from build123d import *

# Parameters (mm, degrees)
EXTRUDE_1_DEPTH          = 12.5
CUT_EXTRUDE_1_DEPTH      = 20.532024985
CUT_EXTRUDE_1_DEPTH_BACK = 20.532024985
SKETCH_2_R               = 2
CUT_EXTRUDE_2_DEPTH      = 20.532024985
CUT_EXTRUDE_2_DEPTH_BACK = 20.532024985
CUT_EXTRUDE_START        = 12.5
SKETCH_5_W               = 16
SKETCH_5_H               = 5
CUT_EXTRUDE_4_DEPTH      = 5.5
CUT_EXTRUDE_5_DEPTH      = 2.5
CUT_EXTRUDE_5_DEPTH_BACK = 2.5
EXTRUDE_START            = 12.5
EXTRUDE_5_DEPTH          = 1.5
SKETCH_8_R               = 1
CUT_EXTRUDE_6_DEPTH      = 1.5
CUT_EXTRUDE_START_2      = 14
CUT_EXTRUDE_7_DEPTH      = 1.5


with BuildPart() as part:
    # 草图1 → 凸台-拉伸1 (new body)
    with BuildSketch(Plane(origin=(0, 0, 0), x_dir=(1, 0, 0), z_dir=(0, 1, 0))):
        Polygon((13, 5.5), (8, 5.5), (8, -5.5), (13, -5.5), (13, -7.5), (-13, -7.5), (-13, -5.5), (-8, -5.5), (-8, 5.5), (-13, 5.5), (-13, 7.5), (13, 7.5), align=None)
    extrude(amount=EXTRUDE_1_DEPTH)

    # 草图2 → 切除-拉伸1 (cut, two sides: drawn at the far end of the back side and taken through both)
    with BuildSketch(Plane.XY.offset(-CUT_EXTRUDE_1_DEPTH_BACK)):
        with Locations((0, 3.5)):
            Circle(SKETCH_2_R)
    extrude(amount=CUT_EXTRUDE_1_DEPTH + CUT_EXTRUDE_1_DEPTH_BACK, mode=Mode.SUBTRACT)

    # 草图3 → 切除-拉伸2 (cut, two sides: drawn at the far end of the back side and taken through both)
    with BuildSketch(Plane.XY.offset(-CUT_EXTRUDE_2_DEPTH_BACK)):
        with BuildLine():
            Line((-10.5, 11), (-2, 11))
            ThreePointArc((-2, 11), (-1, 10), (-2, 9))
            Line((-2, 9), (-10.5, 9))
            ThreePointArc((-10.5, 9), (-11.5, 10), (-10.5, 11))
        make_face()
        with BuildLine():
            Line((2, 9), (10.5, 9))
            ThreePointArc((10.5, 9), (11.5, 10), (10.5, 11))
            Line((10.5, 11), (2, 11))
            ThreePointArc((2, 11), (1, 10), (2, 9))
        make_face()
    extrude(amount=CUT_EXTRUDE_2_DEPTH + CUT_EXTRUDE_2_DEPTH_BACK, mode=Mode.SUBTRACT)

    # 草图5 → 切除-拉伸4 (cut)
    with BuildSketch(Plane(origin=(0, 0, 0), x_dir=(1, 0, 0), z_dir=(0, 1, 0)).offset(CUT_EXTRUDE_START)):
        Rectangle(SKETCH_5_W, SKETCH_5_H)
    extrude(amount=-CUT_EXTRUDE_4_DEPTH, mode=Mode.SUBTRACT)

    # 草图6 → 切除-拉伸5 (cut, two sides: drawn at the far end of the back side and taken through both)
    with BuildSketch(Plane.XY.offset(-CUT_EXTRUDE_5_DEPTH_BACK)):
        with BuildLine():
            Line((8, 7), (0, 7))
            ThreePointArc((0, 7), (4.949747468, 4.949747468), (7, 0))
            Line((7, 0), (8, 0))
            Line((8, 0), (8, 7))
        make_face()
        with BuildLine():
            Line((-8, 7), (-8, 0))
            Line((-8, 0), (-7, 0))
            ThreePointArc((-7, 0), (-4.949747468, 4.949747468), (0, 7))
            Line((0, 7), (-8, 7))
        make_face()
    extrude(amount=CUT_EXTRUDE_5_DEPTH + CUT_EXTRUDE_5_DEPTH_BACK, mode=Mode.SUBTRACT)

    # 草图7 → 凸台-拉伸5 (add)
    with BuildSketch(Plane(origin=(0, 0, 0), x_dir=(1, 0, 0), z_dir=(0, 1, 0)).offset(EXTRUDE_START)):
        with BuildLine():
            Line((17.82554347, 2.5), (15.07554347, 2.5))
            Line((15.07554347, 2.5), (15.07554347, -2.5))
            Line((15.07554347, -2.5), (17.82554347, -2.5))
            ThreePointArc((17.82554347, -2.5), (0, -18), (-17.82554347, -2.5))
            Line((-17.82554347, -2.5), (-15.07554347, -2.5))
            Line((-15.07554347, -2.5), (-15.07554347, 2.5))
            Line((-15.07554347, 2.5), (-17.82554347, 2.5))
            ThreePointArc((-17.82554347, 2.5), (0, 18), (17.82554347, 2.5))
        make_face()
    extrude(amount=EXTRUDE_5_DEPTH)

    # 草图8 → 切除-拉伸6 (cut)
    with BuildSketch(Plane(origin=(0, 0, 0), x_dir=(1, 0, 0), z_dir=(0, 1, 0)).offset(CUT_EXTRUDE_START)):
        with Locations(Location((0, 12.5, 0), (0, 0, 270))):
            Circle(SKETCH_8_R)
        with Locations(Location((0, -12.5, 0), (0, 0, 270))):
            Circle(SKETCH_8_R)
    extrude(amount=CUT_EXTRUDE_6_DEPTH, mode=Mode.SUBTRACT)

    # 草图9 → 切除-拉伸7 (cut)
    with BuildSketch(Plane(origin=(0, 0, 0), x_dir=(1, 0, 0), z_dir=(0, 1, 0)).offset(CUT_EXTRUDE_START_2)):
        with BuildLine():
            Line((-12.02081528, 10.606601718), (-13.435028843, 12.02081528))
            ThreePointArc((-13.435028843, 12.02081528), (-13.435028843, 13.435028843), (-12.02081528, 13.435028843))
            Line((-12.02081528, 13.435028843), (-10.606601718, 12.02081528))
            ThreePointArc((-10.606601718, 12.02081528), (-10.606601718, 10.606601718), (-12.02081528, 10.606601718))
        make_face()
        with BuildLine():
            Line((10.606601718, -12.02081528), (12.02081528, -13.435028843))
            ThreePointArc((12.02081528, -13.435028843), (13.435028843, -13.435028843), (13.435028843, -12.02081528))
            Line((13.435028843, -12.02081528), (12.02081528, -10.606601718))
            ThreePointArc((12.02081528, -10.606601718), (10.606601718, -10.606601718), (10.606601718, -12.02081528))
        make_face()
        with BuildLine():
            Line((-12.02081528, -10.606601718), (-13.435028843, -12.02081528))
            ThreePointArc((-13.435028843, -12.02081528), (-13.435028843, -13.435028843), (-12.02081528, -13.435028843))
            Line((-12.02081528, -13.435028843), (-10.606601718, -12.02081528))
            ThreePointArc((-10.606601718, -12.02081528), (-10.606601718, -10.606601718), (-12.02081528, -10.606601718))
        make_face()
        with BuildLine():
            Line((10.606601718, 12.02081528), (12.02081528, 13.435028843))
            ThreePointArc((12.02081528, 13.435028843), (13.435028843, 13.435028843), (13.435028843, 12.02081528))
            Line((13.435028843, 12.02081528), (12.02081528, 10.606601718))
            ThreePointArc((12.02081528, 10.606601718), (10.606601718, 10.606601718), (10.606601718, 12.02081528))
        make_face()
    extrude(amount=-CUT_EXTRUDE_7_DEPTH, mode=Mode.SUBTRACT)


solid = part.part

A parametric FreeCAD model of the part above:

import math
import FreeCAD as App
import Part
import Sketcher
from FreeCAD import Vector


def add_polygon(sketch, points):
    """Adds a closed chain of lines whose ends are joined by coincident constraints."""
    first, n = sketch.GeometryCount, len(points)
    for a, b in zip(points, points[1:] + points[:1]):
        sketch.addGeometry(Part.LineSegment(App.Vector(*a, 0), App.Vector(*b, 0)), False)
    for i in range(n):
        sketch.addConstraint(Sketcher.Constraint("Coincident", first + i, 2, first + (i + 1) % n, 1))

doc = App.newDocument("Part")
body = doc.addObject("PartDesign::Body", "Body")

# Sketch on XZ plane
sketch1 = body.newObject("Sketcher::SketchObject", "Sketch")
sketch1.AttachmentSupport = (doc.getObject("XZ_Plane"), [""])
sketch1.MapMode = "FlatFace"
add_polygon(sketch1, [(8, -5.5), (13, -5.5), (13, -7.5), (-13, -7.5), (-13, -5.5), (-8, -5.5), (-8, 5.5), (-13, 5.5), (-13, 7.5), (13, 7.5), (13, 5.5), (8, 5.5)])  # lines 0-11
sketch1.addConstraint([
    Sketcher.Constraint("Horizontal", 0),
    Sketcher.Constraint("Vertical", 1),
    Sketcher.Constraint("Horizontal", 2),
    Sketcher.Constraint("Vertical", 3),
    Sketcher.Constraint("Horizontal", 4),
    Sketcher.Constraint("Vertical", 5),
    Sketcher.Constraint("Horizontal", 6),
    Sketcher.Constraint("Vertical", 7),
    Sketcher.Constraint("Horizontal", 8),
    Sketcher.Constraint("Vertical", 9),
    Sketcher.Constraint("Horizontal", 10),
    Sketcher.Constraint("Vertical", 11),
    Sketcher.Constraint("Symmetric", 0, 2, 6, 2, -1, 1),
    Sketcher.Constraint("Symmetric", 2, 2, 8, 2, -1, 1),
    Sketcher.Constraint("Symmetric", 4, 2, 10, 2, -1, 1),
    Sketcher.Constraint("Symmetric", 0, 2, 3, 2, -2),
    Sketcher.Constraint("DistanceX", 0, 1, 0, 2, 5.0),
    Sketcher.Constraint("DistanceX", 2, 2, 2, 1, 26.0),
    Sketcher.Constraint("DistanceY", 1, 2, 1, 1, 2.0),
    Sketcher.Constraint("DistanceY", 5, 1, 5, 2, 11.0),
])
pad1 = body.newObject("PartDesign::Pad", "Pad")
pad1.Profile = sketch1
pad1.Length = 12.5
pad1.Reversed = True

# Sketch on XY plane
sketch2 = body.newObject("Sketcher::SketchObject", "Sketch001")
sketch2.AttachmentSupport = (doc.getObject("XY_Plane"), [""])
sketch2.MapMode = "FlatFace"
sketch2.addGeometry(Part.Circle(Vector(0, 3.5, 0), Vector(0, 0, 1), 2), False)
sketch2.addConstraint([
    Sketcher.Constraint("PointOnObject", 0, 3, -2),
    Sketcher.Constraint("Diameter", 0, 4.0),
    Sketcher.Constraint("DistanceY", -1, 1, 0, 3, 3.5),
])
pocket1 = body.newObject("PartDesign::Pocket", "Pocket")
pocket1.Profile = sketch2
pocket1.Type = "ThroughAll"
pocket1.Midplane = True

# Sketch on XY plane
sketch3 = body.newObject("Sketcher::SketchObject", "Sketch002")
sketch3.AttachmentSupport = (doc.getObject("XY_Plane"), [""])
sketch3.MapMode = "FlatFace"
sketch3.addGeometry([
    Part.LineSegment(Vector(-2, 11, 0), Vector(-10.5, 11, 0)),  # 0
    Part.ArcOfCircle(Part.Circle(Vector(-10.5, 10, 0), Vector(0, 0, 1), 1), math.radians(90), math.radians(270)),  # 1
    Part.LineSegment(Vector(-10.5, 9, 0), Vector(-2, 9, 0)),  # 2
    Part.ArcOfCircle(Part.Circle(Vector(-2, 10, 0), Vector(0, 0, 1), 1), math.radians(-90), math.radians(90)),  # 3
    Part.LineSegment(Vector(2, 9, 0), Vector(10.5, 9, 0)),  # 4
    Part.ArcOfCircle(Part.Circle(Vector(10.5, 10, 0), Vector(0, 0, 1), 1), math.radians(-90), math.radians(90)),  # 5
    Part.LineSegment(Vector(10.5, 11, 0), Vector(2, 11, 0)),  # 6
    Part.ArcOfCircle(Part.Circle(Vector(2, 10, 0), Vector(0, 0, 1), 1), math.radians(90), math.radians(270)),  # 7
], False)
sketch3.addConstraint([
    Sketcher.Constraint("Tangent", 0, 2, 1, 1),
    Sketcher.Constraint("Tangent", 1, 2, 2, 1),
    Sketcher.Constraint("Tangent", 2, 2, 3, 1),
    Sketcher.Constraint("Tangent", 3, 2, 0, 1),
    Sketcher.Constraint("Tangent", 4, 2, 5, 1),
    Sketcher.Constraint("Tangent", 5, 2, 6, 1),
    Sketcher.Constraint("Tangent", 6, 2, 7, 1),
    Sketcher.Constraint("Tangent", 7, 2, 4, 1),
    Sketcher.Constraint("Horizontal", 0),
    Sketcher.Constraint("Horizontal", 2),
    Sketcher.Constraint("Horizontal", 4),
    Sketcher.Constraint("Horizontal", 6),
    Sketcher.Constraint("Equal", 3, 5),
    Sketcher.Constraint("Symmetric", 1, 3, 5, 3, -2),
    Sketcher.Constraint("Equal", 2, 4),
    Sketcher.Constraint("Radius", 1, 1.0),
    Sketcher.Constraint("DistanceX", 0, 2, 0, 1, 8.5),
    Sketcher.Constraint("DistanceY", -1, 1, 1, 3, 10.0),
    Sketcher.Constraint("DistanceX", 3, 3, -1, 1, 2.0),
])
pocket2 = body.newObject("PartDesign::Pocket", "Pocket001")
pocket2.Profile = sketch3
pocket2.Type = "ThroughAll"
pocket2.Midplane = True

# Sketch on XZ plane
sketch4 = body.newObject("Sketcher::SketchObject", "Sketch003")
sketch4.AttachmentSupport = (doc.getObject("XZ_Plane"), [""])
sketch4.MapMode = "FlatFace"
sketch4.AttachmentOffset = App.Placement(Vector(0, 0, -12.5), App.Rotation())
add_polygon(sketch4, [(-8, -2), (-8, 2), (8, 2), (8, -2)])  # lines 0-3
sketch4.addConstraint([
    Sketcher.Constraint("Vertical", 0),
    Sketcher.Constraint("Horizontal", 1),
    Sketcher.Constraint("Vertical", 2),
    Sketcher.Constraint("Horizontal", 3),
    Sketcher.Constraint("Symmetric", 0, 2, 2, 2, -1, 1),
    Sketcher.Constraint("DistanceX", 1, 1, 1, 2, 16.0),
    Sketcher.Constraint("DistanceY", 0, 1, 0, 2, 5.0),
])
pocket3 = body.newObject("PartDesign::Pocket", "Pocket002")
pocket3.Profile = sketch4
pocket3.Length = 5.5
pocket3.Reversed = True

# Sketch on XY plane
sketch5 = body.newObject("Sketcher::SketchObject", "Sketch004")
sketch5.AttachmentSupport = (doc.getObject("XY_Plane"), [""])
sketch5.MapMode = "FlatFace"
sketch5.addGeometry([
    Part.LineSegment(Vector(8, 7, 0), Vector(0, 7, 0)),  # 0
    Part.ArcOfCircle(Part.Circle(Vector(0, 0, 0), Vector(0, 0, 1), 7), math.radians(0), math.radians(90)),  # 1
    Part.LineSegment(Vector(7, 0, 0), Vector(8, 0, 0)),  # 2
    Part.LineSegment(Vector(8, 0, 0), Vector(8, 7, 0)),  # 3
    Part.LineSegment(Vector(-8, 7, 0), Vector(-8, 0, 0)),  # 4
    Part.LineSegment(Vector(-8, 0, 0), Vector(-7, 0, 0)),  # 5
    Part.ArcOfCircle(Part.Circle(Vector(0, 0, 0), Vector(0, 0, 1), 7), math.radians(90), math.radians(180)),  # 6
    Part.LineSegment(Vector(0, 7, 0), Vector(-8, 7, 0)),  # 7
], False)
sketch5.addConstraint([
    Sketcher.Constraint("Tangent", 0, 2, 1, 2),
    Sketcher.Constraint("Coincident", 1, 1, 2, 1),
    Sketcher.Constraint("Coincident", 2, 2, 3, 1),
    Sketcher.Constraint("Coincident", 3, 2, 0, 1),
    Sketcher.Constraint("Coincident", 4, 2, 5, 1),
    Sketcher.Constraint("Coincident", 5, 2, 6, 2),
    Sketcher.Constraint("Tangent", 6, 1, 7, 1),
    Sketcher.Constraint("Coincident", 7, 2, 4, 1),
    Sketcher.Constraint("Horizontal", 0),
    Sketcher.Constraint("Horizontal", 2),
    Sketcher.Constraint("Vertical", 3),
    Sketcher.Constraint("Vertical", 4),
    Sketcher.Constraint("Horizontal", 5),
    Sketcher.Constraint("Horizontal", 7),
    Sketcher.Constraint("Coincident", 1, 3, -1, 1),
    Sketcher.Constraint("Coincident", 6, 3, -1, 1),
    Sketcher.Constraint("Equal", 1, 6),
    Sketcher.Constraint("Symmetric", 2, 2, 4, 2, -1, 1),
    Sketcher.Constraint("PointOnObject", 1, 1, -1),
    Sketcher.Constraint("Radius", 1, 7.0),
    Sketcher.Constraint("DistanceX", 0, 2, 0, 1, 8.0),
])
pocket4 = body.newObject("PartDesign::Pocket", "Pocket003")
pocket4.Profile = sketch5
pocket4.Type = "TwoLengths"
pocket4.Length = 2.5
pocket4.Length2 = 2.5
pocket4.Reversed = True

# Sketch on XZ plane
sketch6 = body.newObject("Sketcher::SketchObject", "Sketch005")
sketch6.AttachmentSupport = (doc.getObject("XZ_Plane"), [""])
sketch6.MapMode = "FlatFace"
sketch6.AttachmentOffset = App.Placement(Vector(0, 0, -12.5), App.Rotation())
sketch6.addGeometry([
    Part.LineSegment(Vector(15.1, -2.5, 0), Vector(17.8, -2.5, 0)),  # 0
    Part.ArcOfCircle(Part.Circle(Vector(0, 0, 0), Vector(0, 0, 1), 18), math.radians(-172), math.radians(-8)),  # 1
    Part.LineSegment(Vector(-17.8, -2.5, 0), Vector(-15.1, -2.5, 0)),  # 2
    Part.LineSegment(Vector(-15.1, -2.5, 0), Vector(-15.1, 2.5, 0)),  # 3
    Part.LineSegment(Vector(-15.1, 2.5, 0), Vector(-17.8, 2.5, 0)),  # 4
    Part.ArcOfCircle(Part.Circle(Vector(0, 0, 0), Vector(0, 0, 1), 18), math.radians(8), math.radians(172)),  # 5
    Part.LineSegment(Vector(17.8, 2.5, 0), Vector(15.1, 2.5, 0)),  # 6
    Part.LineSegment(Vector(15.1, 2.5, 0), Vector(15.1, -2.5, 0)),  # 7
], False)
sketch6.addConstraint([
    Sketcher.Constraint("Coincident", 0, 2, 1, 2),
    Sketcher.Constraint("Coincident", 1, 1, 2, 1),
    Sketcher.Constraint("Coincident", 2, 2, 3, 1),
    Sketcher.Constraint("Coincident", 3, 2, 4, 1),
    Sketcher.Constraint("Coincident", 4, 2, 5, 2),
    Sketcher.Constraint("Coincident", 5, 1, 6, 1),
    Sketcher.Constraint("Coincident", 6, 2, 7, 1),
    Sketcher.Constraint("Coincident", 7, 2, 0, 1),
    Sketcher.Constraint("Horizontal", 0),
    Sketcher.Constraint("Horizontal", 2),
    Sketcher.Constraint("Vertical", 3),
    Sketcher.Constraint("Horizontal", 4),
    Sketcher.Constraint("Horizontal", 6),
    Sketcher.Constraint("Vertical", 7),
    Sketcher.Constraint("Coincident", 1, 3, -1, 1),
    Sketcher.Constraint("Coincident", 5, 3, -1, 1),
    Sketcher.Constraint("Equal", 1, 5),
    Sketcher.Constraint("Symmetric", 2, 2, 6, 2, -1, 1),
    Sketcher.Constraint("Horizontal", 0, 2, 1, 1),
    Sketcher.Constraint("Horizontal", 4, 2, 5, 1),
    Sketcher.Constraint("Radius", 1, 18.0),
    Sketcher.Constraint("DistanceY", 3, 1, 3, 2, 5.0),
    Sketcher.Constraint("DistanceX", 0, 1, 0, 2, 2.75),
])
pad2 = body.newObject("PartDesign::Pad", "Pad001")
pad2.Profile = sketch6
pad2.Length = 1.5
pad2.Reversed = True

# Sketch on XZ plane
sketch7 = body.newObject("Sketcher::SketchObject", "Sketch006")
sketch7.AttachmentSupport = (doc.getObject("XZ_Plane"), [""])
sketch7.MapMode = "FlatFace"
sketch7.AttachmentOffset = App.Placement(Vector(0, 0, -12.5), App.Rotation())
sketch7.addGeometry([
    Part.Circle(Vector(0, -12.5, 0), Vector(0, 0, 1), 1),
    Part.Circle(Vector(0, 12.5, 0), Vector(0, 0, 1), 1),
], False)
sketch7.addConstraint([
    Sketcher.Constraint("Equal", 0, 1),
    Sketcher.Constraint("Symmetric", 0, 3, 1, 3, -1, 1),
    Sketcher.Constraint("PointOnObject", 0, 3, -2),
    Sketcher.Constraint("Diameter", 0, 2.0),
    Sketcher.Constraint("DistanceY", 0, 3, 1, 3, 25.0),
])
pocket5 = body.newObject("PartDesign::Pocket", "Pocket004")
pocket5.Profile = sketch7
pocket5.Length = 1.5

# Sketch on XZ plane
sketch8 = body.newObject("Sketcher::SketchObject", "Sketch007")
sketch8.AttachmentSupport = (doc.getObject("XZ_Plane"), [""])
sketch8.MapMode = "FlatFace"
sketch8.AttachmentOffset = App.Placement(Vector(0, 0, -14), App.Rotation())
sketch8.addGeometry([
    Part.LineSegment(Vector(-13.4, -12, 0), Vector(-12, -10.6, 0)),  # 0
    Part.ArcOfCircle(Part.Circle(Vector(-11.3, -11.3, 0), Vector(0, 0, 1), 1), math.radians(-45), math.radians(135)),  # 1
    Part.LineSegment(Vector(-10.6, -12, 0), Vector(-12, -13.4, 0)),  # 2
    Part.ArcOfCircle(Part.Circle(Vector(-12.7, -12.7, 0), Vector(0, 0, 1), 1), math.radians(135), math.radians(315)),  # 3
    Part.LineSegment(Vector(10.6, 12, 0), Vector(12, 13.4, 0)),  # 4
    Part.ArcOfCircle(Part.Circle(Vector(12.7, 12.7, 0), Vector(0, 0, 1), 1), math.radians(-45), math.radians(135)),  # 5
    Part.LineSegment(Vector(13.4, 12, 0), Vector(12, 10.6, 0)),  # 6
    Part.ArcOfCircle(Part.Circle(Vector(11.3, 11.3, 0), Vector(0, 0, 1), 1), math.radians(135), math.radians(315)),  # 7
    Part.LineSegment(Vector(-12, 10.6, 0), Vector(-13.4, 12, 0)),  # 8
    Part.ArcOfCircle(Part.Circle(Vector(-12.7, 12.7, 0), Vector(0, 0, 1), 1), math.radians(45), math.radians(225)),  # 9
    Part.LineSegment(Vector(-12, 13.4, 0), Vector(-10.6, 12, 0)),  # 10
    Part.ArcOfCircle(Part.Circle(Vector(-11.3, 11.3, 0), Vector(0, 0, 1), 1), math.radians(-135), math.radians(45)),  # 11
    Part.LineSegment(Vector(12, -13.4, 0), Vector(10.6, -12, 0)),  # 12
    Part.ArcOfCircle(Part.Circle(Vector(11.3, -11.3, 0), Vector(0, 0, 1), 1), math.radians(45), math.radians(225)),  # 13
    Part.LineSegment(Vector(12, -10.6, 0), Vector(13.4, -12, 0)),  # 14
    Part.ArcOfCircle(Part.Circle(Vector(12.7, -12.7, 0), Vector(0, 0, 1), 1), math.radians(-135), math.radians(45)),  # 15
], False)
sketch8.addConstraint([
    Sketcher.Constraint("Tangent", 0, 2, 1, 2),
    Sketcher.Constraint("Tangent", 1, 1, 2, 1),
    Sketcher.Constraint("Tangent", 2, 2, 3, 2),
    Sketcher.Constraint("Tangent", 3, 1, 0, 1),
    Sketcher.Constraint("Tangent", 4, 2, 5, 2),
    Sketcher.Constraint("Tangent", 5, 1, 6, 1),
    Sketcher.Constraint("Tangent", 6, 2, 7, 2),
    Sketcher.Constraint("Tangent", 7, 1, 4, 1),
    Sketcher.Constraint("Tangent", 8, 2, 9, 2),
    Sketcher.Constraint("Tangent", 9, 1, 10, 1),
    Sketcher.Constraint("Tangent", 10, 2, 11, 2),
    Sketcher.Constraint("Tangent", 11, 1, 8, 1),
    Sketcher.Constraint("Tangent", 12, 2, 13, 2),
    Sketcher.Constraint("Tangent", 13, 1, 14, 1),
    Sketcher.Constraint("Tangent", 14, 2, 15, 2),
    Sketcher.Constraint("Tangent", 15, 1, 12, 1),
    Sketcher.Constraint("Equal", 1, 3),
    Sketcher.Constraint("Equal", 3, 5),
    Sketcher.Constraint("Equal", 5, 7),
    Sketcher.Constraint("Equal", 7, 9),
    Sketcher.Constraint("Equal", 9, 11),
    Sketcher.Constraint("Equal", 11, 13),
    Sketcher.Constraint("Equal", 13, 15),
    Sketcher.Constraint("Symmetric", 3, 3, 5, 3, -1, 1),
    Sketcher.Constraint("Symmetric", 1, 3, 7, 3, -1, 1),
    Sketcher.Constraint("Symmetric", 11, 3, 13, 3, -1, 1),
    Sketcher.Constraint("Symmetric", 9, 3, 15, 3, -1, 1),
    Sketcher.Constraint("Symmetric", 5, 3, 9, 3, -2),
    Sketcher.Constraint("Symmetric", 7, 3, 11, 3, -2),
    Sketcher.Constraint("Perpendicular", 6, 8),
    Sketcher.Constraint("Horizontal", 1, 1, 3, 1),
    Sketcher.Constraint("Radius", 1, 1.0),
    Sketcher.Constraint("DistanceY", 0, 2, -1, 1, 10.606602),
    Sketcher.Constraint("DistanceX", 1, 1, -1, 1, 10.606602),
])
pocket6 = body.newObject("PartDesign::Pocket", "Pocket005")
pocket6.Profile = sketch8
pocket6.Length = 1.5
pocket6.Reversed = True

doc.recompute()
